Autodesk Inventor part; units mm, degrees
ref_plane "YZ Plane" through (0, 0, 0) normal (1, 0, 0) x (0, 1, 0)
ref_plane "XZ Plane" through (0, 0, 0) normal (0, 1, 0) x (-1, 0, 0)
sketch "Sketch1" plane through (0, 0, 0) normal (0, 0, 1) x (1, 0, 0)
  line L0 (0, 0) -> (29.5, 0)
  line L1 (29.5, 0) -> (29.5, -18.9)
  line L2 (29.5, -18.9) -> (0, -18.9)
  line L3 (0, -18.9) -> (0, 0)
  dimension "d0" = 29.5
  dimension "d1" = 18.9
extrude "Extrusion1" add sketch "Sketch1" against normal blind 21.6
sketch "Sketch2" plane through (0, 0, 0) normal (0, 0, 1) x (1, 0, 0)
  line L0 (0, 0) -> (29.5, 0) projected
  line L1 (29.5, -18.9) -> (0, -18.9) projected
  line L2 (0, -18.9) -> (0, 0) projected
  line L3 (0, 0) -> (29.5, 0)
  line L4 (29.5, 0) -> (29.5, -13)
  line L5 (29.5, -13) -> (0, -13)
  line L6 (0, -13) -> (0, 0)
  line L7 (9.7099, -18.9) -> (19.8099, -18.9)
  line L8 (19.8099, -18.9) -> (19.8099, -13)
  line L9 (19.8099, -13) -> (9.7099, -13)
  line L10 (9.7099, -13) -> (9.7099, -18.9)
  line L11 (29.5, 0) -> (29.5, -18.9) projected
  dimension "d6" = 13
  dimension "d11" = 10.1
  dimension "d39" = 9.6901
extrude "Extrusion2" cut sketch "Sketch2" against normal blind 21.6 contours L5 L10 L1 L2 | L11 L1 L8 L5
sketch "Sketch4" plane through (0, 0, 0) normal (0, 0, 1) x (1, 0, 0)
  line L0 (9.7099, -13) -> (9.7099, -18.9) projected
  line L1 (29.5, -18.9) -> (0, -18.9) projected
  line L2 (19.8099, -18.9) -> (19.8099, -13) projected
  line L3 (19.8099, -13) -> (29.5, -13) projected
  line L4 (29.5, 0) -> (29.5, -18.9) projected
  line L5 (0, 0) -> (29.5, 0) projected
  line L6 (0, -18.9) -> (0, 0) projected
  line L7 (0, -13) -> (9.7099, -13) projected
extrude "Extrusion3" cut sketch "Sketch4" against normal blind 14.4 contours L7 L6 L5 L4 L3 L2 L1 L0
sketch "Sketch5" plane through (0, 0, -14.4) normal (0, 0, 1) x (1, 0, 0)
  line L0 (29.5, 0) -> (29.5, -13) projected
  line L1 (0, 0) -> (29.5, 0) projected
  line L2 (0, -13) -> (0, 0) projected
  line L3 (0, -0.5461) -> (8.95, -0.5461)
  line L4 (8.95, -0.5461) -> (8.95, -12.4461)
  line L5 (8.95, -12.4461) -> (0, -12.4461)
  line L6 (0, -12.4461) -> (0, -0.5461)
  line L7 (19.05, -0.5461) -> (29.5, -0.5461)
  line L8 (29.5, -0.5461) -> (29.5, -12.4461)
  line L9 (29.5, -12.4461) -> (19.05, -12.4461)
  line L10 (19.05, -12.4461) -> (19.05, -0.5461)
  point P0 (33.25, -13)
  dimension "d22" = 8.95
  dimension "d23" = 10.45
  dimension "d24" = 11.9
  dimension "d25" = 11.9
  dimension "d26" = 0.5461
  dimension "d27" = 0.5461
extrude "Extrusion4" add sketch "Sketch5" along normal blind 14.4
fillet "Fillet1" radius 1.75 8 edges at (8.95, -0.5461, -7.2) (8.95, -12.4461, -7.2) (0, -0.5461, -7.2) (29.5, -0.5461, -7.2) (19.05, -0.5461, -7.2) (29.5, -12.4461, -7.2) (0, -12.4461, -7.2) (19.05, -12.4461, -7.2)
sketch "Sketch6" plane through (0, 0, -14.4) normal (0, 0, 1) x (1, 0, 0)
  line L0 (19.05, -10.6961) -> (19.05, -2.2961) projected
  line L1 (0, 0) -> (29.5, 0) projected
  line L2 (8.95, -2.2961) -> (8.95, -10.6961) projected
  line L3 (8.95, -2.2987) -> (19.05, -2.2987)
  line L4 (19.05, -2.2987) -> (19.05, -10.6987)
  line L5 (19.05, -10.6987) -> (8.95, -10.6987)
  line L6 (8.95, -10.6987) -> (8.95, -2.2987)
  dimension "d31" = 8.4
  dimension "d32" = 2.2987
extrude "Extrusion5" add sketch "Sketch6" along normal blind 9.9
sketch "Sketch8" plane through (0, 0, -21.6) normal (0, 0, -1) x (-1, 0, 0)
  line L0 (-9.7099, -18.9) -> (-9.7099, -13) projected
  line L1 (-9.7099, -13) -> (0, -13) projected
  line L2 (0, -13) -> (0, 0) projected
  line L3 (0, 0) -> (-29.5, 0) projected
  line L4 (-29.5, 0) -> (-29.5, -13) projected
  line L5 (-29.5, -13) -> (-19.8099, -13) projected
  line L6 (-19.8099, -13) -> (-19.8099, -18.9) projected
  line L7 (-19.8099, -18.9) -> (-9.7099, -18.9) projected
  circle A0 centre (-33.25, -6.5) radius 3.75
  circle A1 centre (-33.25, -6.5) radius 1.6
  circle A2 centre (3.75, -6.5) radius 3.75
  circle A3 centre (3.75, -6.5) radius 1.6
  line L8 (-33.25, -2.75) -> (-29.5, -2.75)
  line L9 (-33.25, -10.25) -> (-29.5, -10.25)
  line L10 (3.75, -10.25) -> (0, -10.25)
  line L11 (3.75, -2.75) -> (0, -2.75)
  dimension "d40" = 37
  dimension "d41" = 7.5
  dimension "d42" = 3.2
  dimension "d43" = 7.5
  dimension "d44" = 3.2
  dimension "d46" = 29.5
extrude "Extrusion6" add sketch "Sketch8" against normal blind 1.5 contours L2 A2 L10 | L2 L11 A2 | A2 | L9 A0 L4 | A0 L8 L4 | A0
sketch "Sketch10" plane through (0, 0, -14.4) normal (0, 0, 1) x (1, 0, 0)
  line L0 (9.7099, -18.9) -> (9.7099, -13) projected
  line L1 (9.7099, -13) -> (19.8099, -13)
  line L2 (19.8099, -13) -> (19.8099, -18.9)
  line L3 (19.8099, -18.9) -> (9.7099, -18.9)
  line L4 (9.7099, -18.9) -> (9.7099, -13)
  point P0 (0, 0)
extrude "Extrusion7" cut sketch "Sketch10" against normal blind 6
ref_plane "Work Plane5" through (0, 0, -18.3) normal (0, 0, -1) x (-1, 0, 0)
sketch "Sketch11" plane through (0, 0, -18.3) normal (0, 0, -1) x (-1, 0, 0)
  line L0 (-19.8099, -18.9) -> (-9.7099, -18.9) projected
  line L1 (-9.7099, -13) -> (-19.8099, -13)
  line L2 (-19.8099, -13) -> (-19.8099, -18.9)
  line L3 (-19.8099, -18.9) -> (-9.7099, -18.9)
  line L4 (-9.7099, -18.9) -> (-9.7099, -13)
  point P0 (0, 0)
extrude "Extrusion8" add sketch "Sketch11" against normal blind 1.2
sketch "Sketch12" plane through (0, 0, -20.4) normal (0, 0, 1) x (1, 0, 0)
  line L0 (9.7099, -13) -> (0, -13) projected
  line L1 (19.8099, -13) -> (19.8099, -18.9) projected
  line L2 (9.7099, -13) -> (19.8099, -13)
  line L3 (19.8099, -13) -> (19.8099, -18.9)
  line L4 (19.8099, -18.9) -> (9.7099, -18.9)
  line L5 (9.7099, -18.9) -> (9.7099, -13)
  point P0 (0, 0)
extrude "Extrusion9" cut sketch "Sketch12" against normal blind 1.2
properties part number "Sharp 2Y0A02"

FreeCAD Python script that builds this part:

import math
import FreeCAD as App
import Part
import Sketcher
from FreeCAD import Vector


def edges_at(feature, points):
    """Names of the edges that pass closest to the given points."""
    edges = feature.Shape.Edges
    near = lambda p: min(range(len(edges)), key=lambda i: edges[i].distToShape(Part.Vertex(*p))[0])
    return sorted({f"Edge{near(p) + 1}" for p in points})


def add_polygon(sketch, points):
    """Adds a closed chain of lines whose ends are joined by coincident constraints."""
    first, n = sketch.GeometryCount, len(points)
    for a, b in zip(points, points[1:] + points[:1]):
        sketch.addGeometry(Part.LineSegment(App.Vector(*a, 0), App.Vector(*b, 0)), False)
    for i in range(n):
        sketch.addConstraint(Sketcher.Constraint("Coincident", first + i, 2, first + (i + 1) % n, 1))

doc = App.newDocument("Part")
params = doc.addObject("Spreadsheet::Sheet", "Params")
for row, (alias, value) in enumerate([
    ("sketch1_width", "29.5 mm"),
    ("sketch1_height", "18.9 mm"),
    ("pad1_length", "21.6 mm"),
    ("sketch2_width", "9.69 mm"),
    ("sketch2_height", "5.9 mm"),
    ("sketch2_width2", "9.71 mm"),
    ("pocket1_length", "21.6 mm"),
    ("sketch3_height", "13 mm"),
    ("sketch3_width", "10.1 mm"),
    ("sketch3_width2", "29.5 mm"),
    ("sketch3_height2", "5.9 mm"),
    ("sketch3_width3", "9.71 mm"),
    ("pocket2_length", "14.4 mm"),
    ("sketch4_height", "11.9 mm"),
    ("sketch4_width", "10.45 mm"),
    ("sketch4_width2", "8.95 mm"),
    ("pad2_length", "14.4 mm"),
    ("fillet_radius", "1.75 mm"),
    ("sketch5_height", "8.4 mm"),
    ("sketch5_width", "10.1 mm"),
    ("pad3_length", "9.9 mm"),
    ("sketch6_diameter", "3.2 mm"),
    ("sketch6_radius", "3.75 mm"),
    ("pad4_length", "1.5 mm"),
    ("sketch7_width", "10.1 mm"),
    ("sketch7_height", "5.9 mm"),
    ("pocket3_length", "6 mm"),
    ("sketch8_width", "10.1 mm"),
    ("sketch8_height", "5.9 mm"),
    ("pad5_length", "1.2 mm"),
    ("sketch9_width", "10.1 mm"),
    ("sketch9_height", "5.9 mm"),
    ("pocket4_length", "1.2 mm"),
], start=1):
    params.set(f"A{row}", alias)
    params.set(f"B{row}", "=" + value)
    params.setAlias(f"B{row}", alias)

body = doc.addObject("PartDesign::Body", "Body")

sketch1 = body.newObject("Sketcher::SketchObject", "Sketch")
sketch1.AttachmentSupport = (doc.getObject("XY_Plane"), [""])
sketch1.MapMode = "FlatFace"
add_polygon(sketch1, [(30, 0), (0, 0), (0, -19), (30, -19)])
sketch1.addConstraint([
    Sketcher.Constraint("Horizontal", 0),
    Sketcher.Constraint("Vertical", 1),
    Sketcher.Constraint("Horizontal", 2),
    Sketcher.Constraint("Vertical", 3),
    Sketcher.Constraint("Coincident", 0, 2, -1, 1),
    Sketcher.Constraint("DistanceX", 0, 2, 0, 1, 29.5),
    Sketcher.Constraint("DistanceY", 1, 2, 1, 1, 18.9),
])
sketch1.setExpression("Constraints[9]", "Params.sketch1_width")
sketch1.setExpression("Constraints[10]", "Params.sketch1_height")
pad1 = body.newObject("PartDesign::Pad", "Pad")
pad1.Profile = sketch1
pad1.setExpression("Length", "Params.pad1_length")
pad1.Reversed = True

sketch2 = body.newObject("Sketcher::SketchObject", "Sketch001")
sketch2.AttachmentSupport = (doc.getObject("XY_Plane"), [""])
sketch2.MapMode = "FlatFace"
add_polygon(sketch2, [(10, -13), (0, -13), (0, -19), (10, -19)])
add_polygon(sketch2, [(30, -19), (30, -13), (20, -13), (20, -19)])
sketch2.addConstraint([
    Sketcher.Constraint("Horizontal", 0),
    Sketcher.Constraint("Vertical", 1),
    Sketcher.Constraint("Horizontal", 2),
    Sketcher.Constraint("Vertical", 3),
    Sketcher.Constraint("Vertical", 4),
    Sketcher.Constraint("Horizontal", 5),
    Sketcher.Constraint("Vertical", 6),
    Sketcher.Constraint("Horizontal", 7),
    Sketcher.Constraint("PointOnObject", 0, 2, -2),
    Sketcher.Constraint("Horizontal", 3, 2, 4, 2),
    Sketcher.Constraint("Horizontal", 2, 2, 6, 2),
    Sketcher.Constraint("DistanceY", 0, 2, -1, 1, 13.0),
    Sketcher.Constraint("DistanceX", 5, 2, 5, 1, 9.69),
    Sketcher.Constraint("DistanceX", 3, 2, 5, 2, 10.1),
    Sketcher.Constraint("DistanceY", 1, 2, 1, 1, 5.9),
    Sketcher.Constraint("DistanceX", 0, 2, 0, 1, 9.71),
])
sketch2.setExpression("Constraints[20]", "Params.sketch2_width")
sketch2.setExpression("Constraints[22]", "Params.sketch2_height")
sketch2.setExpression("Constraints[23]", "Params.sketch2_width2")
pocket1 = body.newObject("PartDesign::Pocket", "Pocket")
pocket1.Profile = sketch2
pocket1.setExpression("Length", "Params.pocket1_length")

sketch3 = body.newObject("Sketcher::SketchObject", "Sketch002")
sketch3.AttachmentSupport = (doc.getObject("XY_Plane"), [""])
sketch3.MapMode = "FlatFace"
add_polygon(sketch3, [(0, -13), (10, -13), (10, -19), (20, -19), (20, -13), (30, -13), (30, 0), (0, 0)])
sketch3.addConstraint([
    Sketcher.Constraint("Horizontal", 0),
    Sketcher.Constraint("Vertical", 1),
    Sketcher.Constraint("Horizontal", 2),
    Sketcher.Constraint("Vertical", 3),
    Sketcher.Constraint("Horizontal", 4),
    Sketcher.Constraint("Vertical", 5),
    Sketcher.Constraint("Horizontal", 6),
    Sketcher.Constraint("Vertical", 7),
    Sketcher.Constraint("Coincident", 6, 2, -1, 1),
    Sketcher.Constraint("Horizontal", 0, 2, 3, 2),
    Sketcher.Constraint("DistanceY", 5, 1, 5, 2, 13.0),
    Sketcher.Constraint("DistanceX", 2, 1, 2, 2, 10.1),
    Sketcher.Constraint("DistanceX", 6, 2, 6, 1, 29.5),
    Sketcher.Constraint("DistanceY", 1, 2, 1, 1, 5.9),
    Sketcher.Constraint("DistanceX", 0, 1, 0, 2, 9.71),
])
sketch3.setExpression("Constraints[18]", "Params.sketch3_height")
sketch3.setExpression("Constraints[19]", "Params.sketch3_width")
sketch3.setExpression("Constraints[20]", "Params.sketch3_width2")
sketch3.setExpression("Constraints[21]", "Params.sketch3_height2")
sketch3.setExpression("Constraints[22]", "Params.sketch3_width3")
pocket2 = body.newObject("PartDesign::Pocket", "Pocket001")
pocket2.Profile = sketch3
pocket2.setExpression("Length", "Params.pocket2_length")

sketch4 = body.newObject("Sketcher::SketchObject", "Sketch003")
sketch4.AttachmentSupport = (doc.getObject("XY_Plane"), [""])
sketch4.MapMode = "FlatFace"
sketch4.AttachmentOffset = App.Placement(Vector(0, 0, -14.4), App.Rotation())
add_polygon(sketch4, [(30, -12), (30, -1), (19, -1), (19, -12)])
add_polygon(sketch4, [(9, -1), (0, -1), (0, -12), (9, -12)])
sketch4.addConstraint([
    Sketcher.Constraint("Vertical", 0),
    Sketcher.Constraint("Horizontal", 1),
    Sketcher.Constraint("Vertical", 2),
    Sketcher.Constraint("Horizontal", 3),
    Sketcher.Constraint("Horizontal", 4),
    Sketcher.Constraint("Vertical", 5),
    Sketcher.Constraint("Horizontal", 6),
    Sketcher.Constraint("Vertical", 7),
    Sketcher.Constraint("PointOnObject", 4, 2, -2),
    Sketcher.Constraint("Horizontal", 1, 2, 4, 2),
    Sketcher.Constraint("Horizontal", 3, 2, 5, 2),
    Sketcher.Constraint("DistanceY", 0, 1, 0, 2, 11.9),
    Sketcher.Constraint("DistanceX", 1, 2, 1, 1, 10.45),
    Sketcher.Constraint("DistanceX", 4, 2, 4, 1, 8.95),
    Sketcher.Constraint("DistanceY", 0, 2, -1, 1, 0.546),
    Sketcher.Constraint("DistanceX", -1, 1, 0, 2, 29.5),
])
sketch4.setExpression("Constraints[19]", "Params.sketch4_height")
sketch4.setExpression("Constraints[20]", "Params.sketch4_width")
sketch4.setExpression("Constraints[21]", "Params.sketch4_width2")
pad2 = body.newObject("PartDesign::Pad", "Pad001")
pad2.Profile = sketch4
pad2.setExpression("Length", "Params.pad2_length")
doc.recompute()

fillet = body.newObject("PartDesign::Fillet", "Fillet")
fillet.Base = (pad2, edges_at(pad2, [
    (8.95, -0.546, -7.2),
    (8.95, -12.446, -7.2),
    (0, -0.546, -7.2),
    (29.5, -0.546, -7.2),
    (19.05, -0.546, -7.2),
    (29.5, -12.446, -7.2),
    (0, -12.446, -7.2),
    (19.05, -12.446, -7.2),
]))
fillet.setExpression("Radius", "Params.fillet_radius")

sketch5 = body.newObject("Sketcher::SketchObject", "Sketch004")
sketch5.AttachmentSupport = (doc.getObject("XY_Plane"), [""])
sketch5.MapMode = "FlatFace"
sketch5.AttachmentOffset = App.Placement(Vector(0, 0, -14.4), App.Rotation())
add_polygon(sketch5, [(19, -11), (19, -2), (9, -2), (9, -11)])
sketch5.addConstraint([
    Sketcher.Constraint("Vertical", 0),
    Sketcher.Constraint("Horizontal", 1),
    Sketcher.Constraint("Vertical", 2),
    Sketcher.Constraint("Horizontal", 3),
    Sketcher.Constraint("DistanceY", 0, 1, 0, 2, 8.4),
    Sketcher.Constraint("DistanceX", 1, 2, 1, 1, 10.1),
    Sketcher.Constraint("DistanceY", 0, 2, -1, 1, 2.2987),
    Sketcher.Constraint("DistanceX", -1, 1, 0, 2, 19.05),
])
sketch5.setExpression("Constraints[8]", "Params.sketch5_height")
sketch5.setExpression("Constraints[9]", "Params.sketch5_width")
pad3 = body.newObject("PartDesign::Pad", "Pad002")
pad3.Profile = sketch5
pad3.setExpression("Length", "Params.pad3_length")

sketch6 = body.newObject("Sketcher::SketchObject", "Sketch005")
sketch6.AttachmentSupport = (doc.getObject("XY_Plane"), [""])
sketch6.MapMode = "FlatFace"
sketch6.AttachmentOffset = App.Placement(Vector(0, 0, -21.6), App.Rotation())
sketch6.addGeometry([
    Part.LineSegment(Vector(0, -10.2, 0), Vector(-3.8, -10.2, 0)),
    Part.ArcOfCircle(Part.Circle(Vector(-3.8, -6.5, 0), Vector(0, 0, 1), 3.8), math.radians(90), math.radians(270)),
    Part.LineSegment(Vector(-3.8, -2.8, 0), Vector(0, -2.8, 0)),
    Part.LineSegment(Vector(0, -2.8, 0), Vector(0, -10.2, 0)),
    Part.Circle(Vector(-3.8, -6.5, 0), Vector(0, 0, 1), 1.6),
    Part.LineSegment(Vector(33.2, -10.2, 0), Vector(29.5, -10.2, 0)),
    Part.LineSegment(Vector(29.5, -10.2, 0), Vector(29.5, -2.8, 0)),
    Part.LineSegment(Vector(29.5, -2.8, 0), Vector(33.2, -2.8, 0)),
    Part.ArcOfCircle(Part.Circle(Vector(33.2, -6.5, 0), Vector(0, 0, 1), 3.8), math.radians(-90), math.radians(90)),
    Part.Circle(Vector(33.2, -6.5, 0), Vector(0, 0, 1), 1.6),
], False)
sketch6.addConstraint([
    Sketcher.Constraint("Tangent", 0, 2, 1, 2),
    Sketcher.Constraint("Tangent", 1, 1, 2, 1),
    Sketcher.Constraint("Coincident", 2, 2, 3, 1),
    Sketcher.Constraint("Coincident", 3, 2, 0, 1),
    Sketcher.Constraint("Coincident", 5, 2, 6, 1),
    Sketcher.Constraint("Coincident", 6, 2, 7, 1),
    Sketcher.Constraint("Tangent", 7, 2, 8, 2),
    Sketcher.Constraint("Tangent", 8, 1, 5, 1),
    Sketcher.Constraint("Horizontal", 0),
    Sketcher.Constraint("Horizontal", 2),
    Sketcher.Constraint("Vertical", 3),
    Sketcher.Constraint("Horizontal", 5),
    Sketcher.Constraint("Vertical", 6),
    Sketcher.Constraint("Horizontal", 7),
    Sketcher.Constraint("Coincident", 4, 3, 1, 3),
    Sketcher.Constraint("Coincident", 9, 3, 8, 3),
    Sketcher.Constraint("Equal", 1, 8),
    Sketcher.Constraint("Equal", 4, 9),
    Sketcher.Constraint("PointOnObject", 2, 2, -2),
    Sketcher.Constraint("Horizontal", 4, 3, 8, 3),
    Sketcher.Constraint("Equal", 2, 5),
    Sketcher.Constraint("Diameter", 4, 3.2),
    Sketcher.Constraint("Radius", 1, 3.75),
    Sketcher.Constraint("DistanceX", 1, 3, 8, 3, 37.0),
    Sketcher.Constraint("DistanceX", -1, 1, 5, 2, 29.5),
    Sketcher.Constraint("DistanceY", 1, 3, -1, 1, 6.5),
])
sketch6.setExpression("Constraints[21]", "Params.sketch6_diameter")
sketch6.setExpression("Constraints[22]", "Params.sketch6_radius")
pad4 = body.newObject("PartDesign::Pad", "Pad003")
pad4.Profile = sketch6
pad4.setExpression("Length", "Params.pad4_length")

sketch7 = body.newObject("Sketcher::SketchObject", "Sketch006")
sketch7.AttachmentSupport = (doc.getObject("XY_Plane"), [""])
sketch7.MapMode = "FlatFace"
sketch7.AttachmentOffset = App.Placement(Vector(0, 0, -14.4), App.Rotation())
add_polygon(sketch7, [(10, -13), (10, -19), (20, -19), (20, -13)])
sketch7.addConstraint([
    Sketcher.Constraint("Vertical", 0),
    Sketcher.Constraint("Horizontal", 1),
    Sketcher.Constraint("Vertical", 2),
    Sketcher.Constraint("Horizontal", 3),
    Sketcher.Constraint("DistanceX", 1, 1, 1, 2, 10.1),
    Sketcher.Constraint("DistanceY", 0, 2, 0, 1, 5.9),
    Sketcher.Constraint("DistanceY", 2, 2, -1, 1, 13.0),
    Sketcher.Constraint("DistanceX", -1, 1, 0, 2, 9.71),
])
sketch7.setExpression("Constraints[8]", "Params.sketch7_width")
sketch7.setExpression("Constraints[9]", "Params.sketch7_height")
pocket3 = body.newObject("PartDesign::Pocket", "Pocket002")
pocket3.Profile = sketch7
pocket3.setExpression("Length", "Params.pocket3_length")

sketch8 = body.newObject("Sketcher::SketchObject", "Sketch007")
sketch8.AttachmentSupport = (doc.getObject("XY_Plane"), [""])
sketch8.MapMode = "FlatFace"
sketch8.AttachmentOffset = App.Placement(Vector(0, 0, -18.3), App.Rotation())
add_polygon(sketch8, [(20, -13), (20, -19), (10, -19), (10, -13)])
sketch8.addConstraint([
    Sketcher.Constraint("Vertical", 0),
    Sketcher.Constraint("Horizontal", 1),
    Sketcher.Constraint("Vertical", 2),
    Sketcher.Constraint("Horizontal", 3),
    Sketcher.Constraint("DistanceX", 1, 2, 1, 1, 10.1),
    Sketcher.Constraint("DistanceY", 0, 2, 0, 1, 5.9),
    Sketcher.Constraint("DistanceY", 2, 2, -1, 1, 13.0),
    Sketcher.Constraint("DistanceX", -1, 1, 0, 2, 19.81),
])
sketch8.setExpression("Constraints[8]", "Params.sketch8_width")
sketch8.setExpression("Constraints[9]", "Params.sketch8_height")
pad5 = body.newObject("PartDesign::Pad", "Pad004")
pad5.Profile = sketch8
pad5.setExpression("Length", "Params.pad5_length")

sketch9 = body.newObject("Sketcher::SketchObject", "Sketch008")
sketch9.AttachmentSupport = (doc.getObject("XY_Plane"), [""])
sketch9.MapMode = "FlatFace"
sketch9.AttachmentOffset = App.Placement(Vector(0, 0, -20.4), App.Rotation())
add_polygon(sketch9, [(20, -19), (20, -13), (10, -13), (10, -19)])
sketch9.addConstraint([
    Sketcher.Constraint("Vertical", 0),
    Sketcher.Constraint("Horizontal", 1),
    Sketcher.Constraint("Vertical", 2),
    Sketcher.Constraint("Horizontal", 3),
    Sketcher.Constraint("DistanceX", 1, 2, 1, 1, 10.1),
    Sketcher.Constraint("DistanceY", 0, 1, 0, 2, 5.9),
    Sketcher.Constraint("DistanceY", 0, 2, -1, 1, 13.0),
    Sketcher.Constraint("DistanceX", -1, 1, 0, 2, 19.81),
])
sketch9.setExpression("Constraints[8]", "Params.sketch9_width")
sketch9.setExpression("Constraints[9]", "Params.sketch9_height")
pocket4 = body.newObject("PartDesign::Pocket", "Pocket003")
pocket4.Profile = sketch9
pocket4.setExpression("Length", "Params.pocket4_length")

doc.recompute()
